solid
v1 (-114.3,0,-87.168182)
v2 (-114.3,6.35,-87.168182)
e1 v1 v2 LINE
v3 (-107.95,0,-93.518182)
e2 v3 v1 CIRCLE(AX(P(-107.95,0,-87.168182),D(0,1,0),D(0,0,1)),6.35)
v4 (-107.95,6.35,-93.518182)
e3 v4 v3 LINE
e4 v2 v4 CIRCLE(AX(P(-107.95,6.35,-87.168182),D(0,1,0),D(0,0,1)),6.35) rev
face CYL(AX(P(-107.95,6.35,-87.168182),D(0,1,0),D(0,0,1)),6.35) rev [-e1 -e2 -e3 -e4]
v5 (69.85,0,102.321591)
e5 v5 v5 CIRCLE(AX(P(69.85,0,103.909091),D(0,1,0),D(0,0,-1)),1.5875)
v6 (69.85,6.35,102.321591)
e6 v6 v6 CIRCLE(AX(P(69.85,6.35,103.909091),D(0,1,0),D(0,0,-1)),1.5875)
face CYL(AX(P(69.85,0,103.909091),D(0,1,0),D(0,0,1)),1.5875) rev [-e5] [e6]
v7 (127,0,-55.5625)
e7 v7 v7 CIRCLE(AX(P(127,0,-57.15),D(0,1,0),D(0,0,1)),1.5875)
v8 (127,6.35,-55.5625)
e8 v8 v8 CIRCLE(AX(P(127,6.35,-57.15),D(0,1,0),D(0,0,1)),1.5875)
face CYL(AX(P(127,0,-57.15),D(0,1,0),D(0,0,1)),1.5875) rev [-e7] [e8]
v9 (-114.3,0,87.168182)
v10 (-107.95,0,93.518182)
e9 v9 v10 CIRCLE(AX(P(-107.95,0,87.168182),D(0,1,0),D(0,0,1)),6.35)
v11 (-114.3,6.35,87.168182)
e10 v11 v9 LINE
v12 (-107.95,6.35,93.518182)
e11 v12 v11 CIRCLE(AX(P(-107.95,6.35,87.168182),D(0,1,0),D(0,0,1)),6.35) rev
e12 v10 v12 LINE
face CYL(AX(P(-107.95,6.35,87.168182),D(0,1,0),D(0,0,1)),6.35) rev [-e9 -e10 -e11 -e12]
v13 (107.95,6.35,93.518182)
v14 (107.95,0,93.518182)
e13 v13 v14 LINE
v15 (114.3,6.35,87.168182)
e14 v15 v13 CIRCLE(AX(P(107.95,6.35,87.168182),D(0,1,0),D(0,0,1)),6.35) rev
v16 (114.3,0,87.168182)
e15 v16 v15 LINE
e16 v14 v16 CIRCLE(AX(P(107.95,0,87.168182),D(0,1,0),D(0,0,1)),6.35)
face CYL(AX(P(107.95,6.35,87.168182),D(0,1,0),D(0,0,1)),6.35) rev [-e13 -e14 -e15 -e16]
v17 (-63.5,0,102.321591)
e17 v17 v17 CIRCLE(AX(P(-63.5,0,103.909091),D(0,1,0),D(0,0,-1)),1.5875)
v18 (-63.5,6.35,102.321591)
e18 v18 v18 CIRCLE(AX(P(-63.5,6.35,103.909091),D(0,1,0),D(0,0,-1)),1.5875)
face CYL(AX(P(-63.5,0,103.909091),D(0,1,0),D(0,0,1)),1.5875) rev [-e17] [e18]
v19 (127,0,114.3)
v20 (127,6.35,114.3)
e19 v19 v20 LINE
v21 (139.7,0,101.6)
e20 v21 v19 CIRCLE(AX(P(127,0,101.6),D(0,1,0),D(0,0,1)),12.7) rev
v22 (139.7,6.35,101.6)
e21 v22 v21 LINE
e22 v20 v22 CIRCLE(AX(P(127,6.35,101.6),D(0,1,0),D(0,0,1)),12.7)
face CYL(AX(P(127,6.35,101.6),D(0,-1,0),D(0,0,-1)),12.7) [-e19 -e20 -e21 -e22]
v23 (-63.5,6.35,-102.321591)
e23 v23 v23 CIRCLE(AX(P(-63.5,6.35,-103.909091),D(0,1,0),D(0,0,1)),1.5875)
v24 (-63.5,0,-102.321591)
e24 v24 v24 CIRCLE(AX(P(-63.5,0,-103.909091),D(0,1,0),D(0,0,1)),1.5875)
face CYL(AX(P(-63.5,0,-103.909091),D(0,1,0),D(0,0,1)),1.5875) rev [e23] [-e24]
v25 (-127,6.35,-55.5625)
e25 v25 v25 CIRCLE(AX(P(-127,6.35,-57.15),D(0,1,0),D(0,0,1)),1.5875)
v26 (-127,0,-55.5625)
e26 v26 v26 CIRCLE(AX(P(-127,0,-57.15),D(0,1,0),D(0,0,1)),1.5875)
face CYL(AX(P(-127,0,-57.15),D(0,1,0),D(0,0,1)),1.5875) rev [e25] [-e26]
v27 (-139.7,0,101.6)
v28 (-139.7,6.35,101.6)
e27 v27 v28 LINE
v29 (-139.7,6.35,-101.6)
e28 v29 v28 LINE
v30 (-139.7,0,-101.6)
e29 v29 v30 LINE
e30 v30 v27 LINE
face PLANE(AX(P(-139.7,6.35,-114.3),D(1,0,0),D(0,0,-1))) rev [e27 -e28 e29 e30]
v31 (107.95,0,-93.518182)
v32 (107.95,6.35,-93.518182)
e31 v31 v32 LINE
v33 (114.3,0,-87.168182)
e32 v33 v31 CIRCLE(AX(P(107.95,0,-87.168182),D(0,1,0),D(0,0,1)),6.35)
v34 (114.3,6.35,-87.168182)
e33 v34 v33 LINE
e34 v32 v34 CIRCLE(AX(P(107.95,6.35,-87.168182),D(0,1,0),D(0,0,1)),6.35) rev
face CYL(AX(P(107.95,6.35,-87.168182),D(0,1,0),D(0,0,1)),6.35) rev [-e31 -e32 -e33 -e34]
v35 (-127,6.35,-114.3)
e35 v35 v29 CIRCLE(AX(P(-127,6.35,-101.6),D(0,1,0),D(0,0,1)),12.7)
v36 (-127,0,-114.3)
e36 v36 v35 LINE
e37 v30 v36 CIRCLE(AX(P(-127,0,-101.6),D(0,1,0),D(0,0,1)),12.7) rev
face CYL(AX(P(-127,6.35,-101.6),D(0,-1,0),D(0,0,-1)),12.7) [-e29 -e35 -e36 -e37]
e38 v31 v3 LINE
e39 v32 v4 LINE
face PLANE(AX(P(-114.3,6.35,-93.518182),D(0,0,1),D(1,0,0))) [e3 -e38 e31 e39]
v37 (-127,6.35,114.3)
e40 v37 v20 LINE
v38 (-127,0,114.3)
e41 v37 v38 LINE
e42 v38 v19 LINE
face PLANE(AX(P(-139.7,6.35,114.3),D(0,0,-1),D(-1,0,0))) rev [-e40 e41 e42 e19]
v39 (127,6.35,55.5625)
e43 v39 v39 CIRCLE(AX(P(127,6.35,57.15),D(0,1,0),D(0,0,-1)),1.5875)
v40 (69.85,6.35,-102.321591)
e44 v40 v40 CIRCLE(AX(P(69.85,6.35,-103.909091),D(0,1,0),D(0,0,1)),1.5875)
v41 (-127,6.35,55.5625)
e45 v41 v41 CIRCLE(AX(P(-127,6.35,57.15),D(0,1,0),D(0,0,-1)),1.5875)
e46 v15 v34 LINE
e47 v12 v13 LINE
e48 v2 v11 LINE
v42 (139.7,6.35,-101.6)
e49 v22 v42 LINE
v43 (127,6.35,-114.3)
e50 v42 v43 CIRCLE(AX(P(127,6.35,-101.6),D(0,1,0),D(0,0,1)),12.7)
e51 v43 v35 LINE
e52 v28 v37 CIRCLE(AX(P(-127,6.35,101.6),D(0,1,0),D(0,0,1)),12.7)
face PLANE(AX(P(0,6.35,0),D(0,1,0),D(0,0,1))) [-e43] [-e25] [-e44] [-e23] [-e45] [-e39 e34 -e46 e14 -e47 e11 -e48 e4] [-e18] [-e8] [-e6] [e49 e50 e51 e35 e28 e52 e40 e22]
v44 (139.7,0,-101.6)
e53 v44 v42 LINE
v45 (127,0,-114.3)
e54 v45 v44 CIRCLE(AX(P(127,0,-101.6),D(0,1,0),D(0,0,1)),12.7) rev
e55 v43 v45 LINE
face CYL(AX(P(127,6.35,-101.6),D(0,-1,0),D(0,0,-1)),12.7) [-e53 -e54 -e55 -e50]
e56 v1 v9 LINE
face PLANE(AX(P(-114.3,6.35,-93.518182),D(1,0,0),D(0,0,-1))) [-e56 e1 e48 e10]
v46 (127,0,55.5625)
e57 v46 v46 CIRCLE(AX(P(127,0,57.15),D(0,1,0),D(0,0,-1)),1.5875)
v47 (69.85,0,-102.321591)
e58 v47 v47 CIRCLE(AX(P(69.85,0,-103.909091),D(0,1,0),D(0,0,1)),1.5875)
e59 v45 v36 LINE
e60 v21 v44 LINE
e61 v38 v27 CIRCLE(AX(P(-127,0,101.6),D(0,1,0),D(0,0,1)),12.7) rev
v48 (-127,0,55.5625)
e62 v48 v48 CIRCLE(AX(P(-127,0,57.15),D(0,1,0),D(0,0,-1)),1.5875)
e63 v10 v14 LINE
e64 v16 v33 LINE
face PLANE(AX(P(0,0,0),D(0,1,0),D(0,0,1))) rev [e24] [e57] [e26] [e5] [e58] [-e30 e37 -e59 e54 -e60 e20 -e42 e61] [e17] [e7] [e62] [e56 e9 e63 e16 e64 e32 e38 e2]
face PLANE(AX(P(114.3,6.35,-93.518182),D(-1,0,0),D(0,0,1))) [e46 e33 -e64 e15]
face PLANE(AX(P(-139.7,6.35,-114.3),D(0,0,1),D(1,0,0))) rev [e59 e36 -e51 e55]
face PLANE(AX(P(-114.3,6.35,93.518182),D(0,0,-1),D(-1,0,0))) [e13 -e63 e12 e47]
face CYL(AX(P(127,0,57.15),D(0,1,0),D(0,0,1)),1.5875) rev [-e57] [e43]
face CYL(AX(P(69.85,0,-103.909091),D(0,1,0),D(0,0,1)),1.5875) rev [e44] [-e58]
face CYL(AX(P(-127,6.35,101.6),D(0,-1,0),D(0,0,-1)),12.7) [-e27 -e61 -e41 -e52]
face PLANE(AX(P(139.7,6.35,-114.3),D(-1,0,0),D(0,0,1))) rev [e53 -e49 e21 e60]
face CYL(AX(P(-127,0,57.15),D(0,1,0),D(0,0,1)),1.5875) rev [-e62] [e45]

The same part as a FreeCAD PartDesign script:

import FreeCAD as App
import Part
import Sketcher
from FreeCAD import Vector
Q = App.Units.Quantity


def edges_at(feature, points):
    """Names of the edges that pass closest to the given points."""
    edges = feature.Shape.Edges
    near = lambda p: min(range(len(edges)), key=lambda i: edges[i].distToShape(Part.Vertex(*p))[0])
    return sorted({f"Edge{near(p) + 1}" for p in points})


def add_polygon(sketch, points):
    """Adds a closed chain of lines whose ends are joined by coincident constraints."""
    first, n = sketch.GeometryCount, len(points)
    for a, b in zip(points, points[1:] + points[:1]):
        sketch.addGeometry(Part.LineSegment(App.Vector(*a, 0), App.Vector(*b, 0)), False)
    for i in range(n):
        sketch.addConstraint(Sketcher.Constraint("Coincident", first + i, 2, first + (i + 1) % n, 1))

doc = App.newDocument("Part")
body = doc.addObject("PartDesign::Body", "Body")

sketch1 = body.newObject("Sketcher::SketchObject", "Sketch")
sketch1.AttachmentSupport = (doc.getObject("XZ_Plane"), [""])
sketch1.MapMode = "FlatFace"
add_polygon(sketch1, [(-139.7, -114.3), (-139.7, 114.3), (139.7, 114.3), (139.7, -114.3)])
add_polygon(sketch1, [(114.3, 93.518182), (-114.3, 93.518182), (-114.3, -93.518182), (114.3, -93.518182)])
sketch1.addConstraint(Sketcher.Constraint("Vertical", 0))
sketch1.addConstraint(Sketcher.Constraint("Horizontal", 1))
sketch1.addConstraint(Sketcher.Constraint("Vertical", 2))
sketch1.addConstraint(Sketcher.Constraint("Horizontal", 3))
sketch1.addConstraint(Sketcher.Constraint("Horizontal", 4))
sketch1.addConstraint(Sketcher.Constraint("Vertical", 5))
sketch1.addConstraint(Sketcher.Constraint("Horizontal", 6))
sketch1.addConstraint(Sketcher.Constraint("Vertical", 7))
sketch1.addConstraint(Sketcher.Constraint("Symmetric", 0, 2, 2, 2, -1, 1))
sketch1.addConstraint(Sketcher.Constraint("Symmetric", 4, 2, 6, 2, -1, 1))
sketch1.addConstraint(Sketcher.Constraint("Equal", 6, 0))
sketch1.addConstraint(Sketcher.Constraint("DistanceX", 1, 1, 1, 2, Q("11 in")))
sketch1.addConstraint(Sketcher.Constraint("DistanceX", 4, 2, 4, 1, Q("9 in")))
sketch1.addConstraint(Sketcher.Constraint("DistanceY", 5, 2, 5, 1, Q("187.036364 mm")))
pad1 = body.newObject("PartDesign::Pad", "Pad")
pad1.Profile = sketch1
pad1.Length = Q("0.25 in")
pad1.Reversed = True

sketch2 = body.newObject("Sketcher::SketchObject", "Sketch001")
sketch2.AttachmentSupport = (doc.getObject("XZ_Plane"), [""])
sketch2.MapMode = "FlatFace"
sketch2.AttachmentOffset = App.Placement(Vector(0, 0, -0.25 * 25.4), App.Rotation())
sketch2.addGeometry(Part.Circle(Vector(-63.5, -103.909091, 0), Vector(0, 0, 1), 1.5875), False)
sketch2.addGeometry(Part.Circle(Vector(-63.5, 103.909091, 0), Vector(0, 0, 1), 1.5875), False)
sketch2.addGeometry(Part.Circle(Vector(69.85, -103.909091, 0), Vector(0, 0, 1), 1.5875), False)
sketch2.addGeometry(Part.Circle(Vector(69.85, 103.909091, 0), Vector(0, 0, 1), 1.5875), False)
sketch2.addGeometry(Part.Circle(Vector(-127, -57.15, 0), Vector(0, 0, 1), 1.5875), False)
sketch2.addGeometry(Part.Circle(Vector(-127, 57.15, 0), Vector(0, 0, 1), 1.5875), False)
sketch2.addGeometry(Part.Circle(Vector(127, -57.15, 0), Vector(0, 0, 1), 1.5875), False)
sketch2.addGeometry(Part.Circle(Vector(127, 57.15, 0), Vector(0, 0, 1), 1.5875), False)
sketch2.addConstraint(Sketcher.Constraint("Equal", 0, 1))
sketch2.addConstraint(Sketcher.Constraint("Equal", 1, 2))
sketch2.addConstraint(Sketcher.Constraint("Equal", 2, 3))
sketch2.addConstraint(Sketcher.Constraint("Equal", 3, 4))
sketch2.addConstraint(Sketcher.Constraint("Equal", 4, 5))
sketch2.addConstraint(Sketcher.Constraint("Equal", 5, 6))
sketch2.addConstraint(Sketcher.Constraint("Equal", 6, 7))
sketch2.addConstraint(Sketcher.Constraint("Symmetric", 5, 3, 6, 3, -1, 1))
sketch2.addConstraint(Sketcher.Constraint("Symmetric", 4, 3, 7, 3, -1, 1))
sketch2.addConstraint(Sketcher.Constraint("Symmetric", 4, 3, 6, 3, -2))
sketch2.addConstraint(Sketcher.Constraint("Symmetric", 0, 3, 1, 3, -1))
sketch2.addConstraint(Sketcher.Constraint("Symmetric", 2, 3, 3, 3, -1))
sketch2.addConstraint(Sketcher.Constraint("Horizontal", 0, 3, 2, 3))
sketch2.addConstraint(Sketcher.Constraint("Diameter", 0, Q("0.125 in")))
sketch2.addConstraint(Sketcher.Constraint("DistanceX", 4, 3, -1, 1, Q("5 in")))
sketch2.addConstraint(Sketcher.Constraint("DistanceX", 0, 3, -1, 1, Q("2.5 in")))
sketch2.addConstraint(Sketcher.Constraint("DistanceY", 4, 3, 5, 3, Q("4.5 in")))
sketch2.addConstraint(Sketcher.Constraint("DistanceX", -1, 1, 2, 3, Q("2.75 in")))
sketch2.addConstraint(Sketcher.Constraint("DistanceY", 0, 3, -1, 1, Q("103.909091 mm")))
pocket1 = body.newObject("PartDesign::Pocket", "Pocket")
pocket1.Profile = sketch2
pocket1.Type = "ThroughAll"
pocket1.Reversed = True
doc.recompute()

fillet = body.newObject("PartDesign::Fillet", "Fillet")
fillet.Base = (pocket1, edges_at(pocket1, [
    (139.7, 3.175, 114.3),
    (-139.7, 3.175, 114.3),
    (-139.7, 3.175, -114.3),
    (139.7, 3.175, -114.3),
]))
fillet.Radius = Q("0.5 in")
doc.recompute()

fillet2 = body.newObject("PartDesign::Fillet", "Fillet001")
fillet2.Base = (fillet, edges_at(fillet, [
    (114.3, 3.175, 93.518),
    (114.3, 3.175, -93.518),
    (-114.3, 3.175, -93.518),
    (-114.3, 3.175, 93.518),
]))
fillet2.Radius = Q("0.25 in")

doc.recompute()
